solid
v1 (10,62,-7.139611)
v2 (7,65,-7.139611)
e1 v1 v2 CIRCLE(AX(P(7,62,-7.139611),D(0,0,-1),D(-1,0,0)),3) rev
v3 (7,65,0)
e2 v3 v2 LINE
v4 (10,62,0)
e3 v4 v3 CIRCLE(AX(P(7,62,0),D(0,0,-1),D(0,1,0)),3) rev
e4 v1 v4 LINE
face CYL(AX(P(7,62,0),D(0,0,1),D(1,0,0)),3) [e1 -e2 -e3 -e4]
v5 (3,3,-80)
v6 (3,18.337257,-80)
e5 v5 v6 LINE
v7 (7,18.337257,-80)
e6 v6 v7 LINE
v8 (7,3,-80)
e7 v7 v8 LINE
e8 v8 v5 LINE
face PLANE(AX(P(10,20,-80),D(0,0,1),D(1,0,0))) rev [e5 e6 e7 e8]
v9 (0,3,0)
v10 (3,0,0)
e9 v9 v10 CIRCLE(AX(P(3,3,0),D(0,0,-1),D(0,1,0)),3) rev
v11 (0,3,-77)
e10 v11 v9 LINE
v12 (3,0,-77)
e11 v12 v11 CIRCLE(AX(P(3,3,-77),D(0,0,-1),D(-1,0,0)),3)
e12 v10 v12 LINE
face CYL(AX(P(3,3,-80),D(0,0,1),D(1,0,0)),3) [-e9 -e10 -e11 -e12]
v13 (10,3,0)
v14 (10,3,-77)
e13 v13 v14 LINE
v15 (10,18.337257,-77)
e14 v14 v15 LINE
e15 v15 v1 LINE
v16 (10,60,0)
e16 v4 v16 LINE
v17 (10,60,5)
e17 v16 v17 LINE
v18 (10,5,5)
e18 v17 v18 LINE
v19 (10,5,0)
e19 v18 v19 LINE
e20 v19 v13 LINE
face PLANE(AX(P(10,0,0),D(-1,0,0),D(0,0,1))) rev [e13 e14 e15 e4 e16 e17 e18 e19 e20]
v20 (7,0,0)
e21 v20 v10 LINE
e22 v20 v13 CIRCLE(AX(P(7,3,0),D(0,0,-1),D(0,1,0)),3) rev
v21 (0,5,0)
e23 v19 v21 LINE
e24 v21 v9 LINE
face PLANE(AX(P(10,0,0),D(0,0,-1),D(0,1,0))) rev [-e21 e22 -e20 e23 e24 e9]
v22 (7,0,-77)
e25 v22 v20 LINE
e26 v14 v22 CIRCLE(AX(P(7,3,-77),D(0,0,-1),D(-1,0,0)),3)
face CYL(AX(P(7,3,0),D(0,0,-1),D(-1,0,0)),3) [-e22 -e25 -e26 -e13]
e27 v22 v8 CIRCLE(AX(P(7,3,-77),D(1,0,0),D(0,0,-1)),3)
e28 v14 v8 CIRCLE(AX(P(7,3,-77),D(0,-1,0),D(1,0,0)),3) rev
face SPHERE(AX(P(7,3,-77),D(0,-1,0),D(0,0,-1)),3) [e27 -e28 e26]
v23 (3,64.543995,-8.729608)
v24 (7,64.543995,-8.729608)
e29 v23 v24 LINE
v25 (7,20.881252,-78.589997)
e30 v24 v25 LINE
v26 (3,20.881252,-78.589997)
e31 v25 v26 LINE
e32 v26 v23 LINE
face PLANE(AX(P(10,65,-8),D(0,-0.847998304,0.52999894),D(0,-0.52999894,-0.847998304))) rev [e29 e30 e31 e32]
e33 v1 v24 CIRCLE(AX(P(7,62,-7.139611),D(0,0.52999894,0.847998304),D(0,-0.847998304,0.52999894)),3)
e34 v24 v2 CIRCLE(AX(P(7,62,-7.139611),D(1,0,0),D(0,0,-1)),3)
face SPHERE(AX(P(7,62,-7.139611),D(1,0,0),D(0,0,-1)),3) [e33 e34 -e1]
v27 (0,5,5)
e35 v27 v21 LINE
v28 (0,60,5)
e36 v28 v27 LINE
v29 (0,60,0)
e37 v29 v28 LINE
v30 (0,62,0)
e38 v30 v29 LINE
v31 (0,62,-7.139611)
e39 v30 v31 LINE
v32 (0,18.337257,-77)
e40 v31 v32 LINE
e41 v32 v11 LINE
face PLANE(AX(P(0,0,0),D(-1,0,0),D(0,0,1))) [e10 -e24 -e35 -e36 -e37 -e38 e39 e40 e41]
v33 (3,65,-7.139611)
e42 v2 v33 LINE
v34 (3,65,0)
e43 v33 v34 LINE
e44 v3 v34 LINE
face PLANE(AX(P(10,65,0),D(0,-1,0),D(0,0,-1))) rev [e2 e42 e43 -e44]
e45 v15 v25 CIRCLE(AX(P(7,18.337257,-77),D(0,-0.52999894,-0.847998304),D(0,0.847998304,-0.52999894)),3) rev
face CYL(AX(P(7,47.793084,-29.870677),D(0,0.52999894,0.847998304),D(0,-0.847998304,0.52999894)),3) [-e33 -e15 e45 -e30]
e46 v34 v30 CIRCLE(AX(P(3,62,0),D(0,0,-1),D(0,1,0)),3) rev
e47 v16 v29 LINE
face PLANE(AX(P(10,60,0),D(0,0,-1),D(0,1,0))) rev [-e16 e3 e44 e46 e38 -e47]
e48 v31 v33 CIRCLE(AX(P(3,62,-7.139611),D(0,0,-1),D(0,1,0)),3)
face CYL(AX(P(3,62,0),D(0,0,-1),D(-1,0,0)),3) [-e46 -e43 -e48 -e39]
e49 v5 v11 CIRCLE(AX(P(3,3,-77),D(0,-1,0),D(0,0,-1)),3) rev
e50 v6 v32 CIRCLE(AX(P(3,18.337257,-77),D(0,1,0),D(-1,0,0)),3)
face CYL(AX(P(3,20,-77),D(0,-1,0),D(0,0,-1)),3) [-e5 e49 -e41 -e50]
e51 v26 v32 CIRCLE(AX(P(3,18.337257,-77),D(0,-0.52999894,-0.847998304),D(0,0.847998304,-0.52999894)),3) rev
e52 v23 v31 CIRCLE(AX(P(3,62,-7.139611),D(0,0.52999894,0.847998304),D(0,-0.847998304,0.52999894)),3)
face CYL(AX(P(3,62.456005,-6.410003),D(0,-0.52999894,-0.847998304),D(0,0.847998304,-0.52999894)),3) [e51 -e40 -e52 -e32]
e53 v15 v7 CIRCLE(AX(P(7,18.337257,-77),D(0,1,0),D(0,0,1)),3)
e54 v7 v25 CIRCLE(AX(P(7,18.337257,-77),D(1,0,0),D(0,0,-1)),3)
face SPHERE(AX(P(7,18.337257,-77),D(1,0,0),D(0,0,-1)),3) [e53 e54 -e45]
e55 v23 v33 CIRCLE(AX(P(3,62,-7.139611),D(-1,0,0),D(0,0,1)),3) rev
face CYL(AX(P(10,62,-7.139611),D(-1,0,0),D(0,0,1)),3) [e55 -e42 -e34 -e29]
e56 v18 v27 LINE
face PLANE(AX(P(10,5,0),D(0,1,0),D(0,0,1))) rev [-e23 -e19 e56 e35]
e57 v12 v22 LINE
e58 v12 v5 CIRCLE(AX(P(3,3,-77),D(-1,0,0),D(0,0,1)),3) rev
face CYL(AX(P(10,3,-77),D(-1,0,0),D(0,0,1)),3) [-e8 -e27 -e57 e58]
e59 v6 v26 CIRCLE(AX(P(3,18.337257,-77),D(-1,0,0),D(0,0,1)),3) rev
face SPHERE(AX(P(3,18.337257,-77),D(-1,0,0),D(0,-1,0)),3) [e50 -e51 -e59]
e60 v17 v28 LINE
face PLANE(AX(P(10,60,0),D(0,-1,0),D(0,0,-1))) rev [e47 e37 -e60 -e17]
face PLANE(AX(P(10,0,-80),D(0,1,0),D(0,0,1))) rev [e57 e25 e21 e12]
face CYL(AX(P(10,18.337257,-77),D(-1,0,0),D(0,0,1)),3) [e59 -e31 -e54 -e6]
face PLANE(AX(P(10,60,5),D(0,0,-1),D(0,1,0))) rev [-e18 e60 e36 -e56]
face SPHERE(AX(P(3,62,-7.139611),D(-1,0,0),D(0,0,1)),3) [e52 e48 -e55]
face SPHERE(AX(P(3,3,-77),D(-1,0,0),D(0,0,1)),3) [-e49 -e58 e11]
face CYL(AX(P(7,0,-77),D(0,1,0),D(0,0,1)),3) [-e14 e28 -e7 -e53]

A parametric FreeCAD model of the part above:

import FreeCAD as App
import Part
import Sketcher
Q = App.Units.Quantity


def edges_at(feature, points):
    """Names of the edges that pass closest to the given points."""
    edges = feature.Shape.Edges
    near = lambda p: min(range(len(edges)), key=lambda i: edges[i].distToShape(Part.Vertex(*p))[0])
    return sorted({f"Edge{near(p) + 1}" for p in points})

doc = App.newDocument("Part")
body = doc.addObject("PartDesign::Body", "Body")

# Sketch on YZ plane
sketch1 = doc.addObject("Sketcher::SketchObject", "Sketch")
body.addObject(sketch1)
sketch1.AttachmentSupport = (doc.YZ_Plane, [""])
sketch1.MapMode = "FlatFace"
sketch1.addGeometry([
    Part.LineSegment(App.Vector(5, 0, 0), App.Vector(0, 0, 0)),  # 0
    Part.LineSegment(App.Vector(0, 0, 0), App.Vector(0, -80, 0)),  # 1
    Part.LineSegment(App.Vector(0, -80, 0), App.Vector(20, -80, 0)),  # 2
    Part.LineSegment(App.Vector(20, -80, 0), App.Vector(65, -8, 0)),  # 3
    Part.LineSegment(App.Vector(65, -8, 0), App.Vector(65, 0, 0)),  # 4
    Part.LineSegment(App.Vector(65, 0, 0), App.Vector(60, 0, 0)),  # 5
    Part.LineSegment(App.Vector(60, 0, 0), App.Vector(60, 5, 0)),  # 6
    Part.LineSegment(App.Vector(60, 5, 0), App.Vector(5, 5, 0)),  # 7
    Part.LineSegment(App.Vector(5, 5, 0), App.Vector(5, 0, 0)),  # 8
], False)
sketch1.addConstraint([
    Sketcher.Constraint("Coincident", 0, 2, 1, 1),
    Sketcher.Constraint("Coincident", 1, 2, 2, 1),
    Sketcher.Constraint("Coincident", 2, 2, 3, 1),
    Sketcher.Constraint("Coincident", 3, 2, 4, 1),
    Sketcher.Constraint("Coincident", 4, 2, 5, 1),
    Sketcher.Constraint("Coincident", 5, 2, 6, 1),
    Sketcher.Constraint("Coincident", 6, 2, 7, 1),
    Sketcher.Constraint("Coincident", 7, 2, 8, 1),
    Sketcher.Constraint("Coincident", 8, 2, 0, 1),
    Sketcher.Constraint("Horizontal", 0),
    Sketcher.Constraint("Vertical", 1),
    Sketcher.Constraint("Horizontal", 2),
    Sketcher.Constraint("Vertical", 4),
    Sketcher.Constraint("Horizontal", 5),
    Sketcher.Constraint("Vertical", 6),
    Sketcher.Constraint("Horizontal", 7),
    Sketcher.Constraint("Vertical", 8),
    Sketcher.Constraint("Coincident", 0, 2, -1, 1),
    Sketcher.Constraint("PointOnObject", 4, 2, -1),
    Sketcher.Constraint("Equal", 0, 5),
    Sketcher.Constraint("Equal", 5, 6),
    Sketcher.Constraint("DistanceX", 0, 2, 0, 1, Q("5 mm")),
    Sketcher.Constraint("DistanceX", 2, 1, 2, 2, Q("20 mm")),
    Sketcher.Constraint("DistanceX", 7, 2, 7, 1, Q("55 mm")),
    Sketcher.Constraint("DistanceY", 1, 2, 1, 1, Q("80 mm")),
    Sketcher.Constraint("DistanceY", 4, 1, 4, 2, Q("8 mm")),
])
pad1 = doc.addObject("PartDesign::Pad", "Pad")
body.addObject(pad1)
pad1.Profile = sketch1
pad1.Length = 10
doc.recompute()

fillet = doc.addObject("PartDesign::Fillet", "Fillet")
body.addObject(fillet)
fillet.Base = (pad1, edges_at(pad1, [
    (0, 65, -4),
    (0, 42.5, -44),
    (0, 10, -80),
    (0, 0, -40),
    (10, 42.5, -44),
    (5, 65, -8),
    (5, 20, -80),
    (5, 0, -80),
    (10, 65, -4),
    (10, 0, -40),
    (10, 10, -80),
]))
fillet.Radius = 3

doc.recompute()
